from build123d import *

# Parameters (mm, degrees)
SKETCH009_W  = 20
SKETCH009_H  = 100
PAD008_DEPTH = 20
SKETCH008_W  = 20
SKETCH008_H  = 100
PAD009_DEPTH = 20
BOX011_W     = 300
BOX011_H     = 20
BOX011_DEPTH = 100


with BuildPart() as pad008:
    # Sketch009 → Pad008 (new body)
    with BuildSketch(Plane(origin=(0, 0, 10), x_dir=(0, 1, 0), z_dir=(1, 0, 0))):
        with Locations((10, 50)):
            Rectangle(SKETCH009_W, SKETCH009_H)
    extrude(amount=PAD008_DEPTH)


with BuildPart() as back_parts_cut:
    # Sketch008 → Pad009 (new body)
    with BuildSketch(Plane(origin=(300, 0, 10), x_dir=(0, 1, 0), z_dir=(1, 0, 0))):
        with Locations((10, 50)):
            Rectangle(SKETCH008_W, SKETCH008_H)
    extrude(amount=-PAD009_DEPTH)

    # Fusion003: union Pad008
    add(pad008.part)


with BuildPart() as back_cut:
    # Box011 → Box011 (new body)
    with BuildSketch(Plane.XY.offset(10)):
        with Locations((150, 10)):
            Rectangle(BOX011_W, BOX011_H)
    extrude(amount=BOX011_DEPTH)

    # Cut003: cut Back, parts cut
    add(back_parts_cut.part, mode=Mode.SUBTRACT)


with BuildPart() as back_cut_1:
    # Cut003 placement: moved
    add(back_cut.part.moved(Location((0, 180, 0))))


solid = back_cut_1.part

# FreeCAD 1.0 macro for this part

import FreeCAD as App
import Part
import Sketcher

V = App.Vector

doc = App.newDocument("Part")
body = doc.addObject("PartDesign::Body", "Body")

sketch1 = body.newObject("Sketcher::SketchObject", "Sketch")
sketch1.AttachmentSupport = (doc.getObject("YZ_Plane"), [""])
sketch1.MapMode = "FlatFace"
sketch1.addGeometry([
    Part.LineSegment(V(0, 110, 0), V(0, 10, 0)),
    Part.LineSegment(V(0, 10, 0), V(20, 10, 0)),
    Part.LineSegment(V(20, 10, 0), V(20, 110, 0)),
    Part.LineSegment(V(20, 110, 0), V(0, 110, 0)),
], False)
sketch1.addConstraint([
    Sketcher.Constraint("Coincident", 0, 2, 1, 1),
    Sketcher.Constraint("Coincident", 1, 2, 2, 1),
    Sketcher.Constraint("Coincident", 2, 2, 3, 1),
    Sketcher.Constraint("Coincident", 3, 2, 0, 1),
    Sketcher.Constraint("Vertical", 0),
    Sketcher.Constraint("Horizontal", 1),
    Sketcher.Constraint("Vertical", 2),
    Sketcher.Constraint("Horizontal", 3),
    Sketcher.Constraint("PointOnObject", 0, 2, -2),
    Sketcher.Constraint("DistanceX", 1, 1, 1, 2, 20.0),
    Sketcher.Constraint("DistanceY", 0, 2, 0, 1, 100.0),
    Sketcher.Constraint("DistanceY", -1, 1, 0, 2, 10.0),
])
pad1 = body.newObject("PartDesign::Pad", "Pad")
pad1.Profile = sketch1
pad1.Length = 20
body2 = doc.addObject("PartDesign::Body", "Body001")
body2.AllowCompound = True

sketch2 = body2.newObject("Sketcher::SketchObject", "Sketch001")
sketch2.AttachmentSupport = (doc.getObject("YZ_Plane001"), [""])
sketch2.MapMode = "FlatFace"
sketch2.AttachmentOffset = App.Placement(V(0, 0, 300), App.Rotation())
sketch2.addGeometry([
    Part.LineSegment(V(0, 110, 0), V(0, 10, 0)),
    Part.LineSegment(V(0, 10, 0), V(20, 10, 0)),
    Part.LineSegment(V(20, 10, 0), V(20, 110, 0)),
    Part.LineSegment(V(20, 110, 0), V(0, 110, 0)),
], False)
sketch2.addConstraint([
    Sketcher.Constraint("Coincident", 0, 2, 1, 1),
    Sketcher.Constraint("Coincident", 1, 2, 2, 1),
    Sketcher.Constraint("Coincident", 2, 2, 3, 1),
    Sketcher.Constraint("Coincident", 3, 2, 0, 1),
    Sketcher.Constraint("Vertical", 0),
    Sketcher.Constraint("Horizontal", 1),
    Sketcher.Constraint("Vertical", 2),
    Sketcher.Constraint("Horizontal", 3),
    Sketcher.Constraint("PointOnObject", 0, 2, -2),
    Sketcher.Constraint("DistanceX", 1, 1, 1, 2, 20.0),
    Sketcher.Constraint("DistanceY", 0, 2, 0, 1, 100.0),
    Sketcher.Constraint("DistanceY", -1, 1, 0, 2, 10.0),
])
pad2 = body2.newObject("PartDesign::Pad", "Pad001")
pad2.Profile = sketch2
pad2.Length = 20
pad2.Reversed = True
doc.recompute()

boolean = body2.newObject("PartDesign::Boolean", "Boolean")
boolean.Type = "Fuse"
boolean.addObjects([body])
body3 = doc.addObject("PartDesign::Body", "Body002")

sketch3 = body3.newObject("Sketcher::SketchObject", "Sketch002")
sketch3.AttachmentSupport = (doc.getObject("XY_Plane002"), [""])
sketch3.MapMode = "FlatFace"
sketch3.AttachmentOffset = App.Placement(V(0, 0, 10), App.Rotation())
sketch3.addGeometry([
    Part.LineSegment(V(0, 20, 0), V(0, 0, 0)),
    Part.LineSegment(V(0, 0, 0), V(300, 0, 0)),
    Part.LineSegment(V(300, 0, 0), V(300, 20, 0)),
    Part.LineSegment(V(300, 20, 0), V(0, 20, 0)),
], False)
sketch3.addConstraint([
    Sketcher.Constraint("Coincident", 0, 2, 1, 1),
    Sketcher.Constraint("Coincident", 1, 2, 2, 1),
    Sketcher.Constraint("Coincident", 2, 2, 3, 1),
    Sketcher.Constraint("Coincident", 3, 2, 0, 1),
    Sketcher.Constraint("Vertical", 0),
    Sketcher.Constraint("Horizontal", 1),
    Sketcher.Constraint("Vertical", 2),
    Sketcher.Constraint("Horizontal", 3),
    Sketcher.Constraint("Coincident", 0, 2, -1, 1),
    Sketcher.Constraint("DistanceX", 1, 1, 1, 2, 300.0),
    Sketcher.Constraint("DistanceY", 0, 2, 0, 1, 20.0),
])
pad3 = body3.newObject("PartDesign::Pad", "Pad002")
pad3.Profile = sketch3
pad3.Length = 100
doc.recompute()

boolean2 = body3.newObject("PartDesign::Boolean", "Boolean001")
boolean2.Type = "Cut"
boolean2.addObjects([body2])
body4 = doc.addObject("PartDesign::Body", "Body003")
doc.recompute()

body3.Placement = App.Placement(V(0, 180, 0), App.Rotation(V(0, 0, 1), 0))
boolean3 = body4.newObject("PartDesign::Boolean", "Boolean002")
boolean3.Type = "Fuse"
boolean3.addObjects([body3])

doc.recompute()
